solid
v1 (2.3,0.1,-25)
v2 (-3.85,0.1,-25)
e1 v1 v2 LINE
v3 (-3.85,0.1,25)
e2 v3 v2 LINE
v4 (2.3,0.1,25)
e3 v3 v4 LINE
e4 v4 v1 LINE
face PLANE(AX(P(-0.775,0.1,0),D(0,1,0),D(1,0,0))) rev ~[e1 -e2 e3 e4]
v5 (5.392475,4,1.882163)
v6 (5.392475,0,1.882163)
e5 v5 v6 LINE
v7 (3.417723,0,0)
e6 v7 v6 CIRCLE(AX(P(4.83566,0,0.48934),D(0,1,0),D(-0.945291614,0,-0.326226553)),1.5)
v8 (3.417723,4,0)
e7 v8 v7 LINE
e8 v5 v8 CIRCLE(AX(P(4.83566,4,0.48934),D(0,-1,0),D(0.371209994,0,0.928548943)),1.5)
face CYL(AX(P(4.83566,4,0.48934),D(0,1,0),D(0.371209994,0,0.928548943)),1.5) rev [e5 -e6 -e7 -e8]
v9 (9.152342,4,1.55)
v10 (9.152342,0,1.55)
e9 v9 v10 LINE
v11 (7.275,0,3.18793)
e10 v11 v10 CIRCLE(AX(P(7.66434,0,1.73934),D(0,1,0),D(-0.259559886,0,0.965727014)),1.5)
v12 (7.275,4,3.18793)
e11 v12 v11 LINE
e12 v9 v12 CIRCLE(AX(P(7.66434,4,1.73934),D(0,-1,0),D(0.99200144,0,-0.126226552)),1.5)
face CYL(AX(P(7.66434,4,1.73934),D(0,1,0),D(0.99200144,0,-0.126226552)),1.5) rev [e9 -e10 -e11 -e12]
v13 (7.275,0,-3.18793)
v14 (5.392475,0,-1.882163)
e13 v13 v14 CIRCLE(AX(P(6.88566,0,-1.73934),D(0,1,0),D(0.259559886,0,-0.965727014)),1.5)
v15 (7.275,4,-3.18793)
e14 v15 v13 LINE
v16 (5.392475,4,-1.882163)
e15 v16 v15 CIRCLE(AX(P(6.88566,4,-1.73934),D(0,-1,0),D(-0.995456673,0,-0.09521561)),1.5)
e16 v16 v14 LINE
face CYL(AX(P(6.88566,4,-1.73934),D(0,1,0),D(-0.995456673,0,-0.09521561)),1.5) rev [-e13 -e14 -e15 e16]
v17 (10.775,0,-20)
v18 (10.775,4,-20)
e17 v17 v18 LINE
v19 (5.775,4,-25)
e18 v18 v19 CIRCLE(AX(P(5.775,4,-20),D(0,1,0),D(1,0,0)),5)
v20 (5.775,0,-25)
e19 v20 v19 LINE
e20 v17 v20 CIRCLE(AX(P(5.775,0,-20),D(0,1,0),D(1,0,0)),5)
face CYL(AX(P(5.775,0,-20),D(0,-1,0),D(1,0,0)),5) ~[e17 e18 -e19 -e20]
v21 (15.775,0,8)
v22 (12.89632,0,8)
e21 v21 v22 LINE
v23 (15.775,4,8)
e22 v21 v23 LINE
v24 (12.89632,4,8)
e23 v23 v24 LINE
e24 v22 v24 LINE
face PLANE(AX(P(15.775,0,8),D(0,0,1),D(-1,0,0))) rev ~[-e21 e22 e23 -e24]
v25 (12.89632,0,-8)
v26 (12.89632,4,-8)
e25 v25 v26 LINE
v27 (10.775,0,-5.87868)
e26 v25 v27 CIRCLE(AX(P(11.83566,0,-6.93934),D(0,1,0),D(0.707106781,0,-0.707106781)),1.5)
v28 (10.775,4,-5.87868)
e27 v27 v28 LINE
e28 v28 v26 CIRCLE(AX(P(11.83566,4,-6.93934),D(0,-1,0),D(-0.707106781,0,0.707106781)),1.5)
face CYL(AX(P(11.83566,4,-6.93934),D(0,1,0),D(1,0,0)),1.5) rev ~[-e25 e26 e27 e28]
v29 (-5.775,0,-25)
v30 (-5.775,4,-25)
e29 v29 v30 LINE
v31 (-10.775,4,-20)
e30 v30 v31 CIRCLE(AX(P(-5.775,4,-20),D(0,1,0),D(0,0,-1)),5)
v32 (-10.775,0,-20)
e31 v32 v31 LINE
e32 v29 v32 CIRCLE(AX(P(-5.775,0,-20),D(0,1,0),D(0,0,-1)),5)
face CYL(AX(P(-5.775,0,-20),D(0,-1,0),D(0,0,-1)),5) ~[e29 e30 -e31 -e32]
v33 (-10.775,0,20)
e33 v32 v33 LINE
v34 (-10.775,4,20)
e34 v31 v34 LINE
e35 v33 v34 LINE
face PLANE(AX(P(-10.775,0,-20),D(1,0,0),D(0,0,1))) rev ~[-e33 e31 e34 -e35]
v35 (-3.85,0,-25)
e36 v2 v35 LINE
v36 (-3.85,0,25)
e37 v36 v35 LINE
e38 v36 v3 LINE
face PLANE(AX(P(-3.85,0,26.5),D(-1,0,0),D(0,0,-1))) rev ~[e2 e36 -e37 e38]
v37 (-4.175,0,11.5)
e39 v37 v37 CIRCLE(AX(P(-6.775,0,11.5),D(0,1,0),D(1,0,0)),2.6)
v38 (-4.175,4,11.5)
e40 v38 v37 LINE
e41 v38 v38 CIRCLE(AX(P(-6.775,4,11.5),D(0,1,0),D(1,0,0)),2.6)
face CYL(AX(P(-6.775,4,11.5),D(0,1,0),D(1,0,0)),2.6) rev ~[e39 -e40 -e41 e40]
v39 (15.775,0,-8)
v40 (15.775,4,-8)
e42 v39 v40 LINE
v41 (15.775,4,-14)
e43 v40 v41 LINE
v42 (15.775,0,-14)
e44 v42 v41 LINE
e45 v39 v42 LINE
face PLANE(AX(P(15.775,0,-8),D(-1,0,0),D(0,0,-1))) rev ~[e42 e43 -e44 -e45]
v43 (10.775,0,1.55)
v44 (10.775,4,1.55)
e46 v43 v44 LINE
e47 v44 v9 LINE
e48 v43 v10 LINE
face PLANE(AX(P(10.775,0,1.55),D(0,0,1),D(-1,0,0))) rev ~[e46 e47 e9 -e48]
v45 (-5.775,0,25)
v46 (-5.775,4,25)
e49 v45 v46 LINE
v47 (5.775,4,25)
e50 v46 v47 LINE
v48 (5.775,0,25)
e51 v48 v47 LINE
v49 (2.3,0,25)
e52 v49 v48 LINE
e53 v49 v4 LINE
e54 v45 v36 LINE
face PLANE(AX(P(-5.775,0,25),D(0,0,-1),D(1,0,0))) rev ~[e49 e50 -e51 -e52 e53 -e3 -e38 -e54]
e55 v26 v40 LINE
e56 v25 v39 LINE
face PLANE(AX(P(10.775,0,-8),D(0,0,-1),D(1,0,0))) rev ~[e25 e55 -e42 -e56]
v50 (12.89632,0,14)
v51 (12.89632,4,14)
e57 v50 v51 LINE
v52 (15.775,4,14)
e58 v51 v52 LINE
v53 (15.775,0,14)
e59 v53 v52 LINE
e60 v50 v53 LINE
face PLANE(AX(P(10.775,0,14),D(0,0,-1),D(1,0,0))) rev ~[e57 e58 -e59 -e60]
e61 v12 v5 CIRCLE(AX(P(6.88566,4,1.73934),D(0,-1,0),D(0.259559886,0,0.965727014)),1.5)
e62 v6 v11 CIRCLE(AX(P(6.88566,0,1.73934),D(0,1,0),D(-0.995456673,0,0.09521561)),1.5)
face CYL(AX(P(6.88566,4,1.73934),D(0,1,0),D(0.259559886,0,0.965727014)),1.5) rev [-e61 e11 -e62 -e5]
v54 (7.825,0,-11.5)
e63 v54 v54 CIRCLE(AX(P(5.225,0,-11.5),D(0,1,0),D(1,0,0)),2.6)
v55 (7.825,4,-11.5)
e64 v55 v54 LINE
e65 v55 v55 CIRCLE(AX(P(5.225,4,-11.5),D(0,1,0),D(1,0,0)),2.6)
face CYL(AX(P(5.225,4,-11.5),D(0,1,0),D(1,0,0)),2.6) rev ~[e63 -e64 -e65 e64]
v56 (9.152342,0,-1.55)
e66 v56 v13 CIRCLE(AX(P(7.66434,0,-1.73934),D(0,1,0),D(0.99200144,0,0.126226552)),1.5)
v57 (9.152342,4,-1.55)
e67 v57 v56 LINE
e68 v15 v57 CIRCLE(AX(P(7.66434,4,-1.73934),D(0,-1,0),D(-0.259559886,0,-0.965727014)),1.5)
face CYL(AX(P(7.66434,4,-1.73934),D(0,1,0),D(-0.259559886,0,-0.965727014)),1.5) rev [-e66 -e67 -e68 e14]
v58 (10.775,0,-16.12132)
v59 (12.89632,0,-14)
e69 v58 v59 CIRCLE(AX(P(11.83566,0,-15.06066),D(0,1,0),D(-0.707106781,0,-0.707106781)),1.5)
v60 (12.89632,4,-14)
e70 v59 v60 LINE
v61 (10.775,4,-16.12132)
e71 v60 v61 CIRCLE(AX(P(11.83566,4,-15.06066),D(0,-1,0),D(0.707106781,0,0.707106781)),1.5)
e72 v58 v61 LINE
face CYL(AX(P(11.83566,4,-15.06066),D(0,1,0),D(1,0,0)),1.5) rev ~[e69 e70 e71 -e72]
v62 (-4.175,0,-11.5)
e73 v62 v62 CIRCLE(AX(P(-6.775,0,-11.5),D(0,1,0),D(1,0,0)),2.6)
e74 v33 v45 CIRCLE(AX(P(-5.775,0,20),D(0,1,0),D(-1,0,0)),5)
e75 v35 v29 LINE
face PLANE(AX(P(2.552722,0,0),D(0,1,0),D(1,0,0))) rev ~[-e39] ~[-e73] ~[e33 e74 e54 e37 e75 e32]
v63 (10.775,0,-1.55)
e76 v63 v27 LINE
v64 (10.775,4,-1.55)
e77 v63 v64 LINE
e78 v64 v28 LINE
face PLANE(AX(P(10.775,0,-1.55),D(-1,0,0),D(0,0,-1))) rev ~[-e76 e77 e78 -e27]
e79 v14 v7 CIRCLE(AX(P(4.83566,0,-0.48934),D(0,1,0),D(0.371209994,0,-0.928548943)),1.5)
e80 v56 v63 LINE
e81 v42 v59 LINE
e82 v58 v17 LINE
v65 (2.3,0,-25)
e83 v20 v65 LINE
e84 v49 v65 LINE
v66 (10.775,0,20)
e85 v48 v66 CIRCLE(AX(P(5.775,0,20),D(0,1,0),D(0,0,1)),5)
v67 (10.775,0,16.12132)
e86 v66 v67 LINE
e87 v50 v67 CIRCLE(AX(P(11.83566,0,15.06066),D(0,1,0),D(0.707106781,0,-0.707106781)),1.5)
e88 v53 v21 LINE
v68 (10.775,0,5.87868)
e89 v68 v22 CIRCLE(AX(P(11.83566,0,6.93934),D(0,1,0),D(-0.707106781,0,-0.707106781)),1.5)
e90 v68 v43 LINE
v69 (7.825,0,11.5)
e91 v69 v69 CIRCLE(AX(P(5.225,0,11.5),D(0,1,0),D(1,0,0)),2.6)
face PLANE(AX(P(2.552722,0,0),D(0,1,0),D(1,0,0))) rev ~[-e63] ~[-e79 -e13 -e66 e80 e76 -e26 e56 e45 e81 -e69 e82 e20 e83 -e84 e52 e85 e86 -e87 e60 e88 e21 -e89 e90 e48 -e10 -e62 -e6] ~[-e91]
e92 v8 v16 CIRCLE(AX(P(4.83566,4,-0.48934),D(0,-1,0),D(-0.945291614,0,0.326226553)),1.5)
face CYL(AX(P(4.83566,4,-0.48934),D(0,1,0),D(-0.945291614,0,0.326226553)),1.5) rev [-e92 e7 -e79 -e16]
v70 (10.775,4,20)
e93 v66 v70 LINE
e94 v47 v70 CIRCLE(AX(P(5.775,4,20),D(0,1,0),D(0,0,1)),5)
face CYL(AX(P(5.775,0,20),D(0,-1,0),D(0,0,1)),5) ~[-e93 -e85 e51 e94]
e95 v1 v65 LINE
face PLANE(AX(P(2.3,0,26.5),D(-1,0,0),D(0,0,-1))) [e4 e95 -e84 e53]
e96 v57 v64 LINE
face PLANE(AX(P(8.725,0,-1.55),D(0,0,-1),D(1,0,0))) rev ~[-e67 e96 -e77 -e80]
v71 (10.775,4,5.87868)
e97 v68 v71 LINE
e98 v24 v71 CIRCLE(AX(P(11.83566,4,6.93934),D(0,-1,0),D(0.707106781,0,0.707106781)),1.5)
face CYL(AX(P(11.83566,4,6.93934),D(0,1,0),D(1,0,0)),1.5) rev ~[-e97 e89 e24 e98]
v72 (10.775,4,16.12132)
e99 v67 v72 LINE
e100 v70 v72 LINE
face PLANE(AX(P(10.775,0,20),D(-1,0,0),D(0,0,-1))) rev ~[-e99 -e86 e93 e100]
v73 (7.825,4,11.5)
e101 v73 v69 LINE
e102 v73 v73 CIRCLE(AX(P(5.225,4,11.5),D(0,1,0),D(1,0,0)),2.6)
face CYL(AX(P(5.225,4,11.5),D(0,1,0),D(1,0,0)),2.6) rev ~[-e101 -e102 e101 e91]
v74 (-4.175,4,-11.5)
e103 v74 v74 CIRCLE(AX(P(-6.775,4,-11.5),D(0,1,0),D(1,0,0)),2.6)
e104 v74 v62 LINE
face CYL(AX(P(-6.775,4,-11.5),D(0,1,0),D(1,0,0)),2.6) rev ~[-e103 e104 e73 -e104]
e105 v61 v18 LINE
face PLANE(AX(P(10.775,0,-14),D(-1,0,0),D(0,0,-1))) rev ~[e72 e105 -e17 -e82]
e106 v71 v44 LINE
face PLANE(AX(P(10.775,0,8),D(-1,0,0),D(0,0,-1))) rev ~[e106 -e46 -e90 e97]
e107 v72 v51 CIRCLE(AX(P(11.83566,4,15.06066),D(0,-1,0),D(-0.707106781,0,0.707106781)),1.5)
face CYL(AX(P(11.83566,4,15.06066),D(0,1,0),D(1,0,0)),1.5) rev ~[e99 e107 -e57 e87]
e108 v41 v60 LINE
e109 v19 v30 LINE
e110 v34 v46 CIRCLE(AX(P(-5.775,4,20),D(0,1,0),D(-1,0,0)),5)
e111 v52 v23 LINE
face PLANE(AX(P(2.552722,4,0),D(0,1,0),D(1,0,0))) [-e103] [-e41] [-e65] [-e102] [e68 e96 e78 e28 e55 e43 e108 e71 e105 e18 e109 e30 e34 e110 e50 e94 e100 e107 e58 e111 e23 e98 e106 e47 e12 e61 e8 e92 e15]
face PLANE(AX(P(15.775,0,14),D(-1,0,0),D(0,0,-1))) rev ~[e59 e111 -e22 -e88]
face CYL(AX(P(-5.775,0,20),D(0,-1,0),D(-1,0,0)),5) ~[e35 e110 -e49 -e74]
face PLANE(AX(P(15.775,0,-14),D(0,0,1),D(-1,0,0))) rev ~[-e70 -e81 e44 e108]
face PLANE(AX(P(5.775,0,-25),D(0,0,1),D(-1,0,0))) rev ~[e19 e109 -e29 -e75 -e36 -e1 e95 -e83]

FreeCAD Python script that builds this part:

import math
import FreeCAD as App
import Part
import Sketcher
Q = App.Units.Quantity

doc = App.newDocument("Part")
body = doc.addObject("PartDesign::Body", "Body")

# Sketch on XZ plane
sketch1 = body.newObject("Sketcher::SketchObject", "Sketch")
sketch1.AttachmentSupport = (doc.getObject("XZ_Plane"), [""])
sketch1.MapMode = "FlatFace"
sketch1.addGeometry([
    Part.LineSegment(App.Vector(-5.8, 25, 0), App.Vector(5.8, 25, 0)),  # 0
    Part.ArcOfCircle(Part.Circle(App.Vector(5.8, 20, 0), App.Vector(0, 0, 1), 5), math.radians(0), math.radians(90)),  # 1
    Part.LineSegment(App.Vector(10.8, 20, 0), App.Vector(10.8, 14, 0)),  # 2
    Part.LineSegment(App.Vector(10.8, 14, 0), App.Vector(15.8, 14, 0)),  # 3
    Part.LineSegment(App.Vector(15.8, 14, 0), App.Vector(15.8, 8, 0)),  # 4
    Part.LineSegment(App.Vector(15.8, 8, 0), App.Vector(10.8, 8, 0)),  # 5
    Part.LineSegment(App.Vector(10.8, 8, 0), App.Vector(10.8, 1.6, 0)),  # 6
    Part.LineSegment(App.Vector(10.8, 1.6, 0), App.Vector(8.7, 1.6, 0)),  # 7
    Part.LineSegment(App.Vector(8.7, 1.6, 0), App.Vector(8.7, 2.8, 0)),  # 8
    Part.LineSegment(App.Vector(8.7, 2.8, 0), App.Vector(5.8, 2.8, 0)),  # 9
    Part.LineSegment(App.Vector(5.8, 2.8, 0), App.Vector(5.8, 1.6, 0)),  # 10
    Part.LineSegment(App.Vector(5.8, 1.6, 0), App.Vector(3.8, 1.6, 0)),  # 11
    Part.LineSegment(App.Vector(3.8, 1.6, 0), App.Vector(3.8, -1.6, 0)),  # 12
    Part.LineSegment(App.Vector(3.8, -1.6, 0), App.Vector(5.8, -1.6, 0)),  # 13
    Part.LineSegment(App.Vector(5.8, -1.6, 0), App.Vector(5.8, -2.8, 0)),  # 14
    Part.LineSegment(App.Vector(5.8, -2.8, 0), App.Vector(8.7, -2.8, 0)),  # 15
    Part.LineSegment(App.Vector(8.7, -2.8, 0), App.Vector(8.7, -1.6, 0)),  # 16
    Part.LineSegment(App.Vector(8.7, -1.6, 0), App.Vector(10.8, -1.6, 0)),  # 17
    Part.LineSegment(App.Vector(10.8, -1.6, 0), App.Vector(10.8, -8, 0)),  # 18
    Part.LineSegment(App.Vector(10.8, -8, 0), App.Vector(15.8, -8, 0)),  # 19
    Part.LineSegment(App.Vector(15.8, -8, 0), App.Vector(15.8, -14, 0)),  # 20
    Part.LineSegment(App.Vector(15.8, -14, 0), App.Vector(10.8, -14, 0)),  # 21
    Part.LineSegment(App.Vector(10.8, -14, 0), App.Vector(10.8, -20, 0)),  # 22
    Part.ArcOfCircle(Part.Circle(App.Vector(5.8, -20, 0), App.Vector(0, 0, 1), 5), math.radians(-90), math.radians(0)),  # 23
    Part.LineSegment(App.Vector(5.8, -25, 0), App.Vector(-5.8, -25, 0)),  # 24
    Part.ArcOfCircle(Part.Circle(App.Vector(-5.8, -20, 0), App.Vector(0, 0, 1), 5), math.radians(180), math.radians(270)),  # 25
    Part.LineSegment(App.Vector(-10.8, -20, 0), App.Vector(-10.8, 20, 0)),  # 26
    Part.ArcOfCircle(Part.Circle(App.Vector(-5.8, 20, 0), App.Vector(0, 0, 1), 5), math.radians(90), math.radians(180)),  # 27
], False)
sketch1.addConstraint([
    Sketcher.Constraint("Tangent", 0, 2, 1, 2),
    Sketcher.Constraint("Tangent", 1, 1, 2, 1),
    Sketcher.Constraint("Coincident", 2, 2, 3, 1),
    Sketcher.Constraint("Coincident", 3, 2, 4, 1),
    Sketcher.Constraint("Coincident", 4, 2, 5, 1),
    Sketcher.Constraint("Coincident", 5, 2, 6, 1),
    Sketcher.Constraint("Coincident", 6, 2, 7, 1),
    Sketcher.Constraint("Coincident", 7, 2, 8, 1),
    Sketcher.Constraint("Coincident", 8, 2, 9, 1),
    Sketcher.Constraint("Coincident", 9, 2, 10, 1),
    Sketcher.Constraint("Coincident", 10, 2, 11, 1),
    Sketcher.Constraint("Coincident", 11, 2, 12, 1),
    Sketcher.Constraint("Coincident", 12, 2, 13, 1),
    Sketcher.Constraint("Coincident", 13, 2, 14, 1),
    Sketcher.Constraint("Coincident", 14, 2, 15, 1),
    Sketcher.Constraint("Coincident", 15, 2, 16, 1),
    Sketcher.Constraint("Coincident", 16, 2, 17, 1),
    Sketcher.Constraint("Coincident", 17, 2, 18, 1),
    Sketcher.Constraint("Coincident", 18, 2, 19, 1),
    Sketcher.Constraint("Coincident", 19, 2, 20, 1),
    Sketcher.Constraint("Coincident", 20, 2, 21, 1),
    Sketcher.Constraint("Coincident", 21, 2, 22, 1),
    Sketcher.Constraint("Tangent", 22, 2, 23, 2),
    Sketcher.Constraint("Tangent", 23, 1, 24, 1),
    Sketcher.Constraint("Tangent", 24, 2, 25, 2),
    Sketcher.Constraint("Tangent", 25, 1, 26, 1),
    Sketcher.Constraint("Tangent", 26, 2, 27, 2),
    Sketcher.Constraint("Tangent", 27, 1, 0, 1),
    Sketcher.Constraint("Horizontal", 0),
    Sketcher.Constraint("Vertical", 2),
    Sketcher.Constraint("Horizontal", 3),
    Sketcher.Constraint("Vertical", 4),
    Sketcher.Constraint("Horizontal", 5),
    Sketcher.Constraint("Vertical", 6),
    Sketcher.Constraint("Horizontal", 7),
    Sketcher.Constraint("Vertical", 8),
    Sketcher.Constraint("Horizontal", 9),
    Sketcher.Constraint("Vertical", 10),
    Sketcher.Constraint("Horizontal", 11),
    Sketcher.Constraint("Vertical", 12),
    Sketcher.Constraint("Horizontal", 13),
    Sketcher.Constraint("Vertical", 14),
    Sketcher.Constraint("Horizontal", 15),
    Sketcher.Constraint("Vertical", 16),
    Sketcher.Constraint("Horizontal", 17),
    Sketcher.Constraint("Vertical", 18),
    Sketcher.Constraint("Horizontal", 19),
    Sketcher.Constraint("Vertical", 20),
    Sketcher.Constraint("Horizontal", 21),
    Sketcher.Constraint("Vertical", 22),
    Sketcher.Constraint("Horizontal", 24),
    Sketcher.Constraint("Vertical", 26),
    Sketcher.Constraint("Equal", 1, 23),
    Sketcher.Constraint("Equal", 23, 25),
    Sketcher.Constraint("Equal", 25, 27),
    Sketcher.Constraint("Symmetric", 1, 3, 25, 3, -1, 1),
    Sketcher.Constraint("Symmetric", 10, 2, 13, 2, -1),
    Sketcher.Constraint("Symmetric", 8, 2, 15, 2, -1),
    Sketcher.Constraint("Symmetric", 6, 2, 17, 2, -1),
    Sketcher.Constraint("Symmetric", 4, 2, 19, 2, -1),
    Sketcher.Constraint("Symmetric", 2, 2, 21, 2, -1),
    Sketcher.Constraint("Horizontal", 7, 2, 10, 2),
    Sketcher.Constraint("Vertical", 2, 2, 5, 2),
    Sketcher.Constraint("Equal", 7, 11),
    Sketcher.Constraint("Equal", 2, 4),
    Sketcher.Constraint("Radius", 1, Q("5 mm")),
    Sketcher.Constraint("DistanceX", 3, 1, 3, 2, Q("5 mm")),
    Sketcher.Constraint("DistanceY", 2, 2, 2, 1, Q("6 mm")),
    Sketcher.Constraint("DistanceY", 26, 1, 26, 2, Q("40 mm")),
    Sketcher.Constraint("DistanceX", 9, 2, 9, 1, Q("2.9 mm")),
    Sketcher.Constraint("DistanceY", 12, 2, 12, 1, Q("3.1 mm")),
    Sketcher.Constraint("DistanceX", 11, 2, 6, 2, Q("7 mm")),
    Sketcher.Constraint("DistanceX", 0, 1, 0, 2, Q("11.55 mm")),
    Sketcher.Constraint("DistanceY", 8, 1, 8, 2, Q("1.25 mm")),
])
pad1 = body.newObject("PartDesign::Pad", "Pad")
pad1.Profile = sketch1
pad1.Length = 4
pad1.Reversed = True

# Sketch on XZ plane
sketch2 = body.newObject("Sketcher::SketchObject", "Sketch001")
sketch2.AttachmentSupport = (doc.getObject("XZ_Plane"), [""])
sketch2.MapMode = "FlatFace"
sketch2.AttachmentOffset = App.Placement(App.Vector(0, 0, -4), App.Rotation())
sketch2.addGeometry([
    Part.Circle(App.Vector(-6.8, -11.5, 0), App.Vector(0, 0, 1), 2.6),
    Part.Circle(App.Vector(5.2, -11.5, 0), App.Vector(0, 0, 1), 2.6),
    Part.Circle(App.Vector(5.2, 11.5, 0), App.Vector(0, 0, 1), 2.6),
    Part.Circle(App.Vector(-6.8, 11.5, 0), App.Vector(0, 0, 1), 2.6),
], False)
sketch2.addConstraint([
    Sketcher.Constraint("Equal", 0, 1),
    Sketcher.Constraint("Equal", 1, 2),
    Sketcher.Constraint("Equal", 2, 3),
    Sketcher.Constraint("Symmetric", 1, 3, 2, 3, -1),
    Sketcher.Constraint("Symmetric", 0, 3, 3, 3, -1),
    Sketcher.Constraint("Horizontal", 0, 3, 1, 3),
    Sketcher.Constraint("Diameter", 0, Q("5.2 mm")),
    Sketcher.Constraint("DistanceX", 0, 3, 1, 3, Q("12 mm")),
    Sketcher.Constraint("DistanceY", 1, 3, 2, 3, Q("23 mm")),
    Sketcher.Constraint("DistanceX", 0, 3, -1, 1, Q("6.775 mm")),
])
pocket1 = body.newObject("PartDesign::Pocket", "Pocket")
pocket1.Profile = sketch2
pocket1.Type = "ThroughAll"
pocket1.Reversed = True

# Sketch on XZ plane
sketch3 = body.newObject("Sketcher::SketchObject", "Sketch002")
sketch3.AttachmentSupport = (doc.getObject("XZ_Plane"), [""])
sketch3.MapMode = "FlatFace"
sketch3.AttachmentOffset = App.Placement(App.Vector(0, 0, -4), App.Rotation())
sketch3.addGeometry([
    Part.LineSegment(App.Vector(10.8, -1.6, 0), App.Vector(9.2, -1.6, 0)),  # 0
    Part.ArcOfCircle(Part.Circle(App.Vector(7.7, -1.7, 0), App.Vector(0, 0, 1), 1.5), math.radians(-105), math.radians(7)),  # 1
    Part.ArcOfCircle(Part.Circle(App.Vector(6.9, -1.7, 0), App.Vector(0, 0, 1), 1.5), math.radians(-175), math.radians(-75)),  # 2
    Part.ArcOfCircle(Part.Circle(App.Vector(4.8, -0.5, 0), App.Vector(0, 0, 1), 1.5), math.radians(161), math.radians(292)),  # 3
    Part.ArcOfCircle(Part.Circle(App.Vector(4.8, 0.5, 0), App.Vector(0, 0, 1), 1.5), math.radians(68), math.radians(199)),  # 4
    Part.ArcOfCircle(Part.Circle(App.Vector(6.9, 1.7, 0), App.Vector(0, 0, 1), 1.5), math.radians(75), math.radians(175)),  # 5
    Part.ArcOfCircle(Part.Circle(App.Vector(7.7, 1.7, 0), App.Vector(0, 0, 1), 1.5), math.radians(-7), math.radians(105)),  # 6
    Part.LineSegment(App.Vector(9.2, 1.6, 0), App.Vector(10.8, 1.6, 0)),  # 7
    Part.LineSegment(App.Vector(10.8, 1.6, 0), App.Vector(10.8, -1.6, 0)),  # 8
], False)
sketch3.addConstraint([
    Sketcher.Constraint("Coincident", 0, 2, 1, 2),
    Sketcher.Constraint("Coincident", 1, 1, 2, 2),
    Sketcher.Constraint("Coincident", 2, 1, 3, 2),
    Sketcher.Constraint("Coincident", 3, 1, 4, 2),
    Sketcher.Constraint("Coincident", 4, 1, 5, 2),
    Sketcher.Constraint("Coincident", 5, 1, 6, 2),
    Sketcher.Constraint("Coincident", 6, 1, 7, 1),
    Sketcher.Constraint("Coincident", 7, 2, 8, 1),
    Sketcher.Constraint("Coincident", 8, 2, 0, 1),
    Sketcher.Constraint("Horizontal", 0),
    Sketcher.Constraint("Horizontal", 7),
    Sketcher.Constraint("Vertical", 8),
    Sketcher.Constraint("Equal", 1, 2),
    Sketcher.Constraint("Equal", 2, 3),
    Sketcher.Constraint("Equal", 3, 4),
    Sketcher.Constraint("Equal", 4, 5),
    Sketcher.Constraint("Equal", 5, 6),
    Sketcher.Constraint("Symmetric", 3, 3, 4, 3, -1),
    Sketcher.Constraint("Symmetric", 2, 3, 5, 3, -1),
    Sketcher.Constraint("Symmetric", 1, 3, 6, 3, -1),
    Sketcher.Constraint("Horizontal", 1, 3, 2, 3),
    Sketcher.Constraint("Vertical", 0, 2, 6, 1),
    Sketcher.Constraint("Radius", 1, Q("1.5 mm")),
    Sketcher.Constraint("DistanceY", 8, 2, 8, 1, Q("3.1 mm")),
    Sketcher.Constraint("DistanceX", 5, 1, 7, 2, Q("3.5 mm")),
    Sketcher.Constraint("DistanceX", 3, 3, 2, 3, Q("2.05 mm")),
    Sketcher.Constraint("DistanceY", 2, 3, 3, 3, Q("1.25 mm")),
    Sketcher.Constraint("DistanceX", -1, 1, 1, 1, Q("7.275 mm")),
    Sketcher.Constraint("DistanceX", 0, 2, 0, 1, Q("1.622658 mm")),
    Sketcher.Constraint("DistanceX", -1, 1, 1, 3, Q("7.66434 mm")),
])
pocket2 = body.newObject("PartDesign::Pocket", "Pocket001")
pocket2.Profile = sketch3
pocket2.Type = "ThroughAll"
pocket2.Reversed = True

# Sketch on XZ plane
sketch4 = body.newObject("Sketcher::SketchObject", "Sketch003")
sketch4.AttachmentSupport = (doc.getObject("XZ_Plane"), [""])
sketch4.MapMode = "FlatFace"
sketch4.AttachmentOffset = App.Placement(App.Vector(0, 0, -4), App.Rotation())
sketch4.addGeometry([
    Part.Circle(App.Vector(11.8, -15.1, 0), App.Vector(0, 0, 1), 1.5),
    Part.Circle(App.Vector(11.8, -6.9, 0), App.Vector(0, 0, 1), 1.5),
    Part.Circle(App.Vector(11.8, 15.1, 0), App.Vector(0, 0, 1), 1.5),
    Part.Circle(App.Vector(11.8, 6.9, 0), App.Vector(0, 0, 1), 1.5),
], False)
sketch4.addConstraint([
    Sketcher.Constraint("Equal", 0, 1),
    Sketcher.Constraint("Equal", 1, 2),
    Sketcher.Constraint("Equal", 2, 3),
    Sketcher.Constraint("Symmetric", 0, 3, 2, 3, -1),
    Sketcher.Constraint("Symmetric", 1, 3, 3, 3, -1),
    Sketcher.Constraint("Vertical", 0, 3, 1, 3),
    Sketcher.Constraint("Diameter", 0, Q("3 mm")),
    Sketcher.Constraint("DistanceY", 1, 3, 2, 3, Q("22 mm")),
    Sketcher.Constraint("DistanceX", -1, 1, 0, 3, Q("11.83566 mm")),
    Sketcher.Constraint("DistanceY", 0, 3, -1, 1, Q("15.06066 mm")),
])
pocket3 = body.newObject("PartDesign::Pocket", "Pocket002")
pocket3.Profile = sketch4
pocket3.Type = "ThroughAll"
pocket3.Reversed = True

# Sketch on XZ plane
sketch5 = body.newObject("Sketcher::SketchObject", "Sketch004")
sketch5.AttachmentSupport = (doc.getObject("XZ_Plane"), [""])
sketch5.MapMode = "FlatFace"
sketch5.addGeometry([
    Part.LineSegment(App.Vector(-4, -26, 0), App.Vector(-4, 26, 0)),
    Part.LineSegment(App.Vector(-4, 26, 0), App.Vector(2, 26, 0)),
    Part.LineSegment(App.Vector(2, 26, 0), App.Vector(2, -26, 0)),
    Part.LineSegment(App.Vector(2, -26, 0), App.Vector(-4, -26, 0)),
], False)
sketch5.addConstraint([
    Sketcher.Constraint("Coincident", 0, 2, 1, 1),
    Sketcher.Constraint("Coincident", 1, 2, 2, 1),
    Sketcher.Constraint("Coincident", 2, 2, 3, 1),
    Sketcher.Constraint("Coincident", 3, 2, 0, 1),
    Sketcher.Constraint("Vertical", 0),
    Sketcher.Constraint("Horizontal", 1),
    Sketcher.Constraint("Vertical", 2),
    Sketcher.Constraint("Horizontal", 3),
    Sketcher.Constraint("DistanceY", 0, 1, 0, 2, Q("53 mm")),
    Sketcher.Constraint("DistanceX", 1, 1, 1, 2, Q("6.15 mm")),
    Sketcher.Constraint("DistanceY", -1, 1, 0, 2, Q("26.5 mm")),
    Sketcher.Constraint("DistanceX", -1, 1, 1, 2, Q("2.3 mm")),
])
pocket4 = body.newObject("PartDesign::Pocket", "Pocket003")
pocket4.Profile = sketch5
pocket4.Length = 0.1

doc.recompute()
